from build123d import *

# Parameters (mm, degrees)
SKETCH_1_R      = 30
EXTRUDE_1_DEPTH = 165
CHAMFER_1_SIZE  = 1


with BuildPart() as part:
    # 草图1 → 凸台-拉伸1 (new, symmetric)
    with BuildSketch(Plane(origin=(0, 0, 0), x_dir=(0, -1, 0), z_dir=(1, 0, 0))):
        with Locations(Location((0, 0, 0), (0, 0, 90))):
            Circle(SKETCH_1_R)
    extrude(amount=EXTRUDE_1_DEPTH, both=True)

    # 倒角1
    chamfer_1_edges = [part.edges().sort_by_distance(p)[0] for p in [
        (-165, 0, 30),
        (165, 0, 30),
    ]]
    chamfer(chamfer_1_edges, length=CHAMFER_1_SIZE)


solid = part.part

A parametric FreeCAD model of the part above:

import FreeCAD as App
import Part
import Sketcher
Q = App.Units.Quantity


def edges_at(feature, points):
    """Names of the edges that pass closest to the given points."""
    edges = feature.Shape.Edges
    near = lambda p: min(range(len(edges)), key=lambda i: edges[i].distToShape(Part.Vertex(*p))[0])
    return sorted({f"Edge{near(p) + 1}" for p in points})

doc = App.newDocument("Part")
body = doc.addObject("PartDesign::Body", "Body")

sketch1 = body.newObject("Sketcher::SketchObject", "Sketch")
sketch1.AttachmentSupport = (doc.getObject("YZ_Plane"), [""])
sketch1.MapMode = "FlatFace"
sketch1.addGeometry(Part.Circle(App.Vector(0, 0, 0), App.Vector(0, 0, 1), 30), False)
sketch1.addConstraint(Sketcher.Constraint("Coincident", 0, 3, -1, 1))
sketch1.addConstraint(Sketcher.Constraint("Diameter", 0, Q("60 mm")))
pad1 = body.newObject("PartDesign::Pad", "Pad")
pad1.Profile = sketch1
pad1.Length = 330
pad1.Midplane = True
doc.recompute()

chamfer = body.newObject("PartDesign::Chamfer", "Chamfer")
chamfer.Base = (pad1, edges_at(pad1, [(-165, 0, 30), (165, 0, 30)]))
chamfer.Size = 1

doc.recompute()
